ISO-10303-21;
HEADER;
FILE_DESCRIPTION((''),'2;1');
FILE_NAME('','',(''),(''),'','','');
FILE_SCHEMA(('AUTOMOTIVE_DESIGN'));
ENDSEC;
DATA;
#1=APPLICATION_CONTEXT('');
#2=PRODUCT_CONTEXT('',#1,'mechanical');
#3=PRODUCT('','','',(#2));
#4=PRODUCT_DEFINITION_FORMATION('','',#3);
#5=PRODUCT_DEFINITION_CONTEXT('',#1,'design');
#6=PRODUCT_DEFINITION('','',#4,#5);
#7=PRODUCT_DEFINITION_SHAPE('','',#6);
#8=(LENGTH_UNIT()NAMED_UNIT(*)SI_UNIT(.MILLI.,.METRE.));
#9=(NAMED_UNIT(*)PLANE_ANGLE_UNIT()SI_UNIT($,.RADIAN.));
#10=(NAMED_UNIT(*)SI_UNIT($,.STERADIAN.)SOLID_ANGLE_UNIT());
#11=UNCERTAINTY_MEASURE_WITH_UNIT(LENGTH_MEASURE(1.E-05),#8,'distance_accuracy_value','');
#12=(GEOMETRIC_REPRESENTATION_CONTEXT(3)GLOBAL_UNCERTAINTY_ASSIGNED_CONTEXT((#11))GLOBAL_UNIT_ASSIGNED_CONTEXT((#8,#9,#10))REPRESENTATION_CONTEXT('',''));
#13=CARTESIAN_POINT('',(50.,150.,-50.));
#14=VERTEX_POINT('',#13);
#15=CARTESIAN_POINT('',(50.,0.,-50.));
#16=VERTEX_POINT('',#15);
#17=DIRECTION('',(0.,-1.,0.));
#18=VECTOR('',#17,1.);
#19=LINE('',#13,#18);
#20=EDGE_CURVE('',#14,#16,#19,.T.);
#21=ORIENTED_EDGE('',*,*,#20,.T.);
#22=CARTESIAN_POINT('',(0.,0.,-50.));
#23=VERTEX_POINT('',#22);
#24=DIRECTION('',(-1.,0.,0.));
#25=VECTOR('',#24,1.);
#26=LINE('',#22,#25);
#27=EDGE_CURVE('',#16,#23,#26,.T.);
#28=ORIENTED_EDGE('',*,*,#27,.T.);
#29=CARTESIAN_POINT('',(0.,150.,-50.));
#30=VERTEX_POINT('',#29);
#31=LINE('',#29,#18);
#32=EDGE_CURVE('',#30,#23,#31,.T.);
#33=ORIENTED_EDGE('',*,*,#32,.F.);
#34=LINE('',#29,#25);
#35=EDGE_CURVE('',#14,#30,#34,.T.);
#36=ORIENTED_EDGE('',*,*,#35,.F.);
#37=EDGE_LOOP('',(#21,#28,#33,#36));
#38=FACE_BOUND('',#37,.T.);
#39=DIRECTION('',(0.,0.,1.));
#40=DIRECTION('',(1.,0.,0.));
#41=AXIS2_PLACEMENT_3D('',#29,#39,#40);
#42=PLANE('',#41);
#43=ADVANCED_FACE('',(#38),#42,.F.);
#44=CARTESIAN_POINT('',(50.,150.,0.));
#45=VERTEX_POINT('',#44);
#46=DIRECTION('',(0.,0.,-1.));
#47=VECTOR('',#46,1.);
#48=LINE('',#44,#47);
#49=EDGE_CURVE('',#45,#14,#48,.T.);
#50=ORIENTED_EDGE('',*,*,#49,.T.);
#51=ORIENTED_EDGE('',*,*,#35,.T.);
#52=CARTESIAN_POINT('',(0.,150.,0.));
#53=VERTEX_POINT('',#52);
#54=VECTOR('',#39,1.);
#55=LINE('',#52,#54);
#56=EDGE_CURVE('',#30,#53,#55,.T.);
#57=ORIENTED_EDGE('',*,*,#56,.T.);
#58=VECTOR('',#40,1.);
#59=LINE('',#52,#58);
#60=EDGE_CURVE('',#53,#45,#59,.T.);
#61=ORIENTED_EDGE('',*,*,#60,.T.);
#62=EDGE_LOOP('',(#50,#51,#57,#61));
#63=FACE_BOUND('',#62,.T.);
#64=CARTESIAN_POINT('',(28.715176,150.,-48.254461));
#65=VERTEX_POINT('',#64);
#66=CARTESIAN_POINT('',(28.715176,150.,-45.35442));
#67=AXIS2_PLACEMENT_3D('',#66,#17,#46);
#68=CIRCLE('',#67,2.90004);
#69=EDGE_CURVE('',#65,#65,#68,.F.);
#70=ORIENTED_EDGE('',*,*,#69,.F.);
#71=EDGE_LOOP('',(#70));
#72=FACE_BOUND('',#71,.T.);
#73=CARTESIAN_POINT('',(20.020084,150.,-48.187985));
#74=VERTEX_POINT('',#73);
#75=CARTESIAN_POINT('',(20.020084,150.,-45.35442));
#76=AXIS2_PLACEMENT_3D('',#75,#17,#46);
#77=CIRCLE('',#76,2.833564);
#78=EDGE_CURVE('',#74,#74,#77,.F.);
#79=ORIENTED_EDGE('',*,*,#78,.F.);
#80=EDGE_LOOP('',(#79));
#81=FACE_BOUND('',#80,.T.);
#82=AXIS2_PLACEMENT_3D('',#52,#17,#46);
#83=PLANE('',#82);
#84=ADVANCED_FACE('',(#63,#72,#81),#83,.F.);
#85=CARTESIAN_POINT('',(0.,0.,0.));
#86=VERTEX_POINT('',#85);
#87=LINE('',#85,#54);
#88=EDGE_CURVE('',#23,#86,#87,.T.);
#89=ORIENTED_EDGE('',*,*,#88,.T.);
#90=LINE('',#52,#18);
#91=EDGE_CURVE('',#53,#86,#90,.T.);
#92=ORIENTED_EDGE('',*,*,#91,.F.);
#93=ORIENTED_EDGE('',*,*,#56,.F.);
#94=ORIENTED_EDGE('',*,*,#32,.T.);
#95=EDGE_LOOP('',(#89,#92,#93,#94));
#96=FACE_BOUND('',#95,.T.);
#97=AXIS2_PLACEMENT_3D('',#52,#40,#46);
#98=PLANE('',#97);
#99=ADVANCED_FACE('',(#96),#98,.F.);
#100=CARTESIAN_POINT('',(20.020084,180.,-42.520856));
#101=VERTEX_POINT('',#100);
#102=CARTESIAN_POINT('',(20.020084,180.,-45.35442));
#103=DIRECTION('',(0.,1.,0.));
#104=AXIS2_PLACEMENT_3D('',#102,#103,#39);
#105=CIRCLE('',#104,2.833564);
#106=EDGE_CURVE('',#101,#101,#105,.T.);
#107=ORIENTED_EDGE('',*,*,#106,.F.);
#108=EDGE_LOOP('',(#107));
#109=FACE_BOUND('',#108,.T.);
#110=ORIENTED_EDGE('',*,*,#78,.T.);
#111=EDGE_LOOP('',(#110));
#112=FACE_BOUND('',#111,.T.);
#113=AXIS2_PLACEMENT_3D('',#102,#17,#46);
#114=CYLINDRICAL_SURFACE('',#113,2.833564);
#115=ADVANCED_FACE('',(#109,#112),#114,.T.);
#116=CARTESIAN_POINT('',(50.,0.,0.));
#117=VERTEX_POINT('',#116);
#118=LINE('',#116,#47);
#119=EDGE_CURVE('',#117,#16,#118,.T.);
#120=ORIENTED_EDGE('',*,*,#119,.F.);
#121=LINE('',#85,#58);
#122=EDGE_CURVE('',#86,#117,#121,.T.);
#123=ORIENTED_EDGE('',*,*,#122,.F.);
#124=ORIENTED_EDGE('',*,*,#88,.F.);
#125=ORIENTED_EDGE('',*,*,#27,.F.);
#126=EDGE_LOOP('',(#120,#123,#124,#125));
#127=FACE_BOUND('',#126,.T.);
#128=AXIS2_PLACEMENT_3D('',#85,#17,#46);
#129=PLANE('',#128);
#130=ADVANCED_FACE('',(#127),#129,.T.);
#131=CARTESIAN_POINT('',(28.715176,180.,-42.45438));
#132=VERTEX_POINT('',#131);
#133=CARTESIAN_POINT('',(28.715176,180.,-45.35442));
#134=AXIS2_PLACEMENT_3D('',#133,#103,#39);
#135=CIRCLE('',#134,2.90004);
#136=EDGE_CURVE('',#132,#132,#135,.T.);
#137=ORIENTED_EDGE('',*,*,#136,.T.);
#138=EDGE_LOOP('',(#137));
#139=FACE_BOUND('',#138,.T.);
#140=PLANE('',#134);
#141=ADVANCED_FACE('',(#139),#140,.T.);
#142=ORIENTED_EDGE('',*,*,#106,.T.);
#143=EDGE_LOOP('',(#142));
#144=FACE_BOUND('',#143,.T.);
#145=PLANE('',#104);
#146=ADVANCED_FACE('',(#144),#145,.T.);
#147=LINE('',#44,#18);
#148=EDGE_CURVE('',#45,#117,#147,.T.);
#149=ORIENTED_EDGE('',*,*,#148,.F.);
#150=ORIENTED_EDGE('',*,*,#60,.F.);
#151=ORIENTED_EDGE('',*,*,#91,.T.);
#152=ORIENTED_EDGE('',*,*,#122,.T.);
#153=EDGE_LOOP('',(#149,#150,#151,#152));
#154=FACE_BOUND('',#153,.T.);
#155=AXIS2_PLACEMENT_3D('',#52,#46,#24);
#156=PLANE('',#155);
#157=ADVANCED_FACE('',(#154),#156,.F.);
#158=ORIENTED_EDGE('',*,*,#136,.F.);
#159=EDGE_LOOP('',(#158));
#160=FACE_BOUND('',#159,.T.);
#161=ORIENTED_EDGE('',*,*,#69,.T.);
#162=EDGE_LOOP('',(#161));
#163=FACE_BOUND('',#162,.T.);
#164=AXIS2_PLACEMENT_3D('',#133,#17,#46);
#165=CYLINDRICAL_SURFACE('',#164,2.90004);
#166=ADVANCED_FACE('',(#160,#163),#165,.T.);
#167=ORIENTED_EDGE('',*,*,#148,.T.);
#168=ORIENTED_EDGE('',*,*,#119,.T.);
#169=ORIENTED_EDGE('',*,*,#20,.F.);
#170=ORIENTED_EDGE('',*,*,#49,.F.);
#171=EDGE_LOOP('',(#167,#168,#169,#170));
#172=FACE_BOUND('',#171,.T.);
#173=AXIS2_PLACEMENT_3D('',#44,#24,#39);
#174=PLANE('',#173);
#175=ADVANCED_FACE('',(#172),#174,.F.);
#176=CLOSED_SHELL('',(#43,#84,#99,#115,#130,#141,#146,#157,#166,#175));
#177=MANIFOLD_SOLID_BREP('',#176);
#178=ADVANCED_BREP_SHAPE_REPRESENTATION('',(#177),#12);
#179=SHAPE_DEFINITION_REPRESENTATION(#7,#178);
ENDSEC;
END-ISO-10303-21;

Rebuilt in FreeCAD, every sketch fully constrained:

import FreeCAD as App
import Part
import Sketcher
from FreeCAD import Vector
Q = App.Units.Quantity

doc = App.newDocument("Part")
body = doc.addObject("PartDesign::Body", "Body")

# Sketch on XZ plane
sketch1 = body.newObject("Sketcher::SketchObject", "Sketch")
sketch1.AttachmentSupport = (doc.getObject("XZ_Plane"), [""])
sketch1.MapMode = "FlatFace"
sketch1.addGeometry([
    Part.LineSegment(Vector(0, -50, 0), Vector(0, 0, 0)),
    Part.LineSegment(Vector(0, 0, 0), Vector(50, 0, 0)),
    Part.LineSegment(Vector(50, 0, 0), Vector(50, -50, 0)),
    Part.LineSegment(Vector(50, -50, 0), Vector(0, -50, 0)),
], False)
sketch1.addConstraint([
    Sketcher.Constraint("Coincident", 0, 2, 1, 1),
    Sketcher.Constraint("Coincident", 1, 2, 2, 1),
    Sketcher.Constraint("Coincident", 2, 2, 3, 1),
    Sketcher.Constraint("Coincident", 3, 2, 0, 1),
    Sketcher.Constraint("Vertical", 0),
    Sketcher.Constraint("Horizontal", 1),
    Sketcher.Constraint("Vertical", 2),
    Sketcher.Constraint("Horizontal", 3),
    Sketcher.Constraint("Coincident", 0, 2, -1, 1),
    Sketcher.Constraint("Equal", 3, 0),
    Sketcher.Constraint("DistanceX", 1, 1, 1, 2, Q("50 mm")),
])
pad1 = body.newObject("PartDesign::Pad", "Pad")
pad1.Profile = sketch1
pad1.Length = 150
pad1.Reversed = True

# Sketch on XZ plane
sketch2 = body.newObject("Sketcher::SketchObject", "Sketch001")
sketch2.AttachmentSupport = (doc.getObject("XZ_Plane"), [""])
sketch2.MapMode = "FlatFace"
sketch2.AttachmentOffset = App.Placement(Vector(0, 0, -150), App.Rotation())
sketch2.addGeometry([
    Part.Circle(Vector(20.020084, -45.35442, 0), Vector(0, 0, 1), 2.833564),
    Part.Circle(Vector(28.715176, -45.35442, 0), Vector(0, 0, 1), 2.90004),
], False)
sketch2.addConstraint([
    Sketcher.Constraint("Horizontal", 0, 3, 1, 3),
    Sketcher.Constraint("Diameter", 0, Q("5.667129 mm")),
    Sketcher.Constraint("Diameter", 1, Q("5.800081 mm")),
    Sketcher.Constraint("DistanceY", 0, 3, -1, 1, Q("45.35442 mm")),
    Sketcher.Constraint("DistanceX", -1, 1, 0, 3, Q("20.020084 mm")),
    Sketcher.Constraint("DistanceX", -1, 1, 1, 3, Q("28.715176 mm")),
])
pad2 = body.newObject("PartDesign::Pad", "Pad001")
pad2.Profile = sketch2
pad2.Length = 30
pad2.Reversed = True

doc.recompute()
